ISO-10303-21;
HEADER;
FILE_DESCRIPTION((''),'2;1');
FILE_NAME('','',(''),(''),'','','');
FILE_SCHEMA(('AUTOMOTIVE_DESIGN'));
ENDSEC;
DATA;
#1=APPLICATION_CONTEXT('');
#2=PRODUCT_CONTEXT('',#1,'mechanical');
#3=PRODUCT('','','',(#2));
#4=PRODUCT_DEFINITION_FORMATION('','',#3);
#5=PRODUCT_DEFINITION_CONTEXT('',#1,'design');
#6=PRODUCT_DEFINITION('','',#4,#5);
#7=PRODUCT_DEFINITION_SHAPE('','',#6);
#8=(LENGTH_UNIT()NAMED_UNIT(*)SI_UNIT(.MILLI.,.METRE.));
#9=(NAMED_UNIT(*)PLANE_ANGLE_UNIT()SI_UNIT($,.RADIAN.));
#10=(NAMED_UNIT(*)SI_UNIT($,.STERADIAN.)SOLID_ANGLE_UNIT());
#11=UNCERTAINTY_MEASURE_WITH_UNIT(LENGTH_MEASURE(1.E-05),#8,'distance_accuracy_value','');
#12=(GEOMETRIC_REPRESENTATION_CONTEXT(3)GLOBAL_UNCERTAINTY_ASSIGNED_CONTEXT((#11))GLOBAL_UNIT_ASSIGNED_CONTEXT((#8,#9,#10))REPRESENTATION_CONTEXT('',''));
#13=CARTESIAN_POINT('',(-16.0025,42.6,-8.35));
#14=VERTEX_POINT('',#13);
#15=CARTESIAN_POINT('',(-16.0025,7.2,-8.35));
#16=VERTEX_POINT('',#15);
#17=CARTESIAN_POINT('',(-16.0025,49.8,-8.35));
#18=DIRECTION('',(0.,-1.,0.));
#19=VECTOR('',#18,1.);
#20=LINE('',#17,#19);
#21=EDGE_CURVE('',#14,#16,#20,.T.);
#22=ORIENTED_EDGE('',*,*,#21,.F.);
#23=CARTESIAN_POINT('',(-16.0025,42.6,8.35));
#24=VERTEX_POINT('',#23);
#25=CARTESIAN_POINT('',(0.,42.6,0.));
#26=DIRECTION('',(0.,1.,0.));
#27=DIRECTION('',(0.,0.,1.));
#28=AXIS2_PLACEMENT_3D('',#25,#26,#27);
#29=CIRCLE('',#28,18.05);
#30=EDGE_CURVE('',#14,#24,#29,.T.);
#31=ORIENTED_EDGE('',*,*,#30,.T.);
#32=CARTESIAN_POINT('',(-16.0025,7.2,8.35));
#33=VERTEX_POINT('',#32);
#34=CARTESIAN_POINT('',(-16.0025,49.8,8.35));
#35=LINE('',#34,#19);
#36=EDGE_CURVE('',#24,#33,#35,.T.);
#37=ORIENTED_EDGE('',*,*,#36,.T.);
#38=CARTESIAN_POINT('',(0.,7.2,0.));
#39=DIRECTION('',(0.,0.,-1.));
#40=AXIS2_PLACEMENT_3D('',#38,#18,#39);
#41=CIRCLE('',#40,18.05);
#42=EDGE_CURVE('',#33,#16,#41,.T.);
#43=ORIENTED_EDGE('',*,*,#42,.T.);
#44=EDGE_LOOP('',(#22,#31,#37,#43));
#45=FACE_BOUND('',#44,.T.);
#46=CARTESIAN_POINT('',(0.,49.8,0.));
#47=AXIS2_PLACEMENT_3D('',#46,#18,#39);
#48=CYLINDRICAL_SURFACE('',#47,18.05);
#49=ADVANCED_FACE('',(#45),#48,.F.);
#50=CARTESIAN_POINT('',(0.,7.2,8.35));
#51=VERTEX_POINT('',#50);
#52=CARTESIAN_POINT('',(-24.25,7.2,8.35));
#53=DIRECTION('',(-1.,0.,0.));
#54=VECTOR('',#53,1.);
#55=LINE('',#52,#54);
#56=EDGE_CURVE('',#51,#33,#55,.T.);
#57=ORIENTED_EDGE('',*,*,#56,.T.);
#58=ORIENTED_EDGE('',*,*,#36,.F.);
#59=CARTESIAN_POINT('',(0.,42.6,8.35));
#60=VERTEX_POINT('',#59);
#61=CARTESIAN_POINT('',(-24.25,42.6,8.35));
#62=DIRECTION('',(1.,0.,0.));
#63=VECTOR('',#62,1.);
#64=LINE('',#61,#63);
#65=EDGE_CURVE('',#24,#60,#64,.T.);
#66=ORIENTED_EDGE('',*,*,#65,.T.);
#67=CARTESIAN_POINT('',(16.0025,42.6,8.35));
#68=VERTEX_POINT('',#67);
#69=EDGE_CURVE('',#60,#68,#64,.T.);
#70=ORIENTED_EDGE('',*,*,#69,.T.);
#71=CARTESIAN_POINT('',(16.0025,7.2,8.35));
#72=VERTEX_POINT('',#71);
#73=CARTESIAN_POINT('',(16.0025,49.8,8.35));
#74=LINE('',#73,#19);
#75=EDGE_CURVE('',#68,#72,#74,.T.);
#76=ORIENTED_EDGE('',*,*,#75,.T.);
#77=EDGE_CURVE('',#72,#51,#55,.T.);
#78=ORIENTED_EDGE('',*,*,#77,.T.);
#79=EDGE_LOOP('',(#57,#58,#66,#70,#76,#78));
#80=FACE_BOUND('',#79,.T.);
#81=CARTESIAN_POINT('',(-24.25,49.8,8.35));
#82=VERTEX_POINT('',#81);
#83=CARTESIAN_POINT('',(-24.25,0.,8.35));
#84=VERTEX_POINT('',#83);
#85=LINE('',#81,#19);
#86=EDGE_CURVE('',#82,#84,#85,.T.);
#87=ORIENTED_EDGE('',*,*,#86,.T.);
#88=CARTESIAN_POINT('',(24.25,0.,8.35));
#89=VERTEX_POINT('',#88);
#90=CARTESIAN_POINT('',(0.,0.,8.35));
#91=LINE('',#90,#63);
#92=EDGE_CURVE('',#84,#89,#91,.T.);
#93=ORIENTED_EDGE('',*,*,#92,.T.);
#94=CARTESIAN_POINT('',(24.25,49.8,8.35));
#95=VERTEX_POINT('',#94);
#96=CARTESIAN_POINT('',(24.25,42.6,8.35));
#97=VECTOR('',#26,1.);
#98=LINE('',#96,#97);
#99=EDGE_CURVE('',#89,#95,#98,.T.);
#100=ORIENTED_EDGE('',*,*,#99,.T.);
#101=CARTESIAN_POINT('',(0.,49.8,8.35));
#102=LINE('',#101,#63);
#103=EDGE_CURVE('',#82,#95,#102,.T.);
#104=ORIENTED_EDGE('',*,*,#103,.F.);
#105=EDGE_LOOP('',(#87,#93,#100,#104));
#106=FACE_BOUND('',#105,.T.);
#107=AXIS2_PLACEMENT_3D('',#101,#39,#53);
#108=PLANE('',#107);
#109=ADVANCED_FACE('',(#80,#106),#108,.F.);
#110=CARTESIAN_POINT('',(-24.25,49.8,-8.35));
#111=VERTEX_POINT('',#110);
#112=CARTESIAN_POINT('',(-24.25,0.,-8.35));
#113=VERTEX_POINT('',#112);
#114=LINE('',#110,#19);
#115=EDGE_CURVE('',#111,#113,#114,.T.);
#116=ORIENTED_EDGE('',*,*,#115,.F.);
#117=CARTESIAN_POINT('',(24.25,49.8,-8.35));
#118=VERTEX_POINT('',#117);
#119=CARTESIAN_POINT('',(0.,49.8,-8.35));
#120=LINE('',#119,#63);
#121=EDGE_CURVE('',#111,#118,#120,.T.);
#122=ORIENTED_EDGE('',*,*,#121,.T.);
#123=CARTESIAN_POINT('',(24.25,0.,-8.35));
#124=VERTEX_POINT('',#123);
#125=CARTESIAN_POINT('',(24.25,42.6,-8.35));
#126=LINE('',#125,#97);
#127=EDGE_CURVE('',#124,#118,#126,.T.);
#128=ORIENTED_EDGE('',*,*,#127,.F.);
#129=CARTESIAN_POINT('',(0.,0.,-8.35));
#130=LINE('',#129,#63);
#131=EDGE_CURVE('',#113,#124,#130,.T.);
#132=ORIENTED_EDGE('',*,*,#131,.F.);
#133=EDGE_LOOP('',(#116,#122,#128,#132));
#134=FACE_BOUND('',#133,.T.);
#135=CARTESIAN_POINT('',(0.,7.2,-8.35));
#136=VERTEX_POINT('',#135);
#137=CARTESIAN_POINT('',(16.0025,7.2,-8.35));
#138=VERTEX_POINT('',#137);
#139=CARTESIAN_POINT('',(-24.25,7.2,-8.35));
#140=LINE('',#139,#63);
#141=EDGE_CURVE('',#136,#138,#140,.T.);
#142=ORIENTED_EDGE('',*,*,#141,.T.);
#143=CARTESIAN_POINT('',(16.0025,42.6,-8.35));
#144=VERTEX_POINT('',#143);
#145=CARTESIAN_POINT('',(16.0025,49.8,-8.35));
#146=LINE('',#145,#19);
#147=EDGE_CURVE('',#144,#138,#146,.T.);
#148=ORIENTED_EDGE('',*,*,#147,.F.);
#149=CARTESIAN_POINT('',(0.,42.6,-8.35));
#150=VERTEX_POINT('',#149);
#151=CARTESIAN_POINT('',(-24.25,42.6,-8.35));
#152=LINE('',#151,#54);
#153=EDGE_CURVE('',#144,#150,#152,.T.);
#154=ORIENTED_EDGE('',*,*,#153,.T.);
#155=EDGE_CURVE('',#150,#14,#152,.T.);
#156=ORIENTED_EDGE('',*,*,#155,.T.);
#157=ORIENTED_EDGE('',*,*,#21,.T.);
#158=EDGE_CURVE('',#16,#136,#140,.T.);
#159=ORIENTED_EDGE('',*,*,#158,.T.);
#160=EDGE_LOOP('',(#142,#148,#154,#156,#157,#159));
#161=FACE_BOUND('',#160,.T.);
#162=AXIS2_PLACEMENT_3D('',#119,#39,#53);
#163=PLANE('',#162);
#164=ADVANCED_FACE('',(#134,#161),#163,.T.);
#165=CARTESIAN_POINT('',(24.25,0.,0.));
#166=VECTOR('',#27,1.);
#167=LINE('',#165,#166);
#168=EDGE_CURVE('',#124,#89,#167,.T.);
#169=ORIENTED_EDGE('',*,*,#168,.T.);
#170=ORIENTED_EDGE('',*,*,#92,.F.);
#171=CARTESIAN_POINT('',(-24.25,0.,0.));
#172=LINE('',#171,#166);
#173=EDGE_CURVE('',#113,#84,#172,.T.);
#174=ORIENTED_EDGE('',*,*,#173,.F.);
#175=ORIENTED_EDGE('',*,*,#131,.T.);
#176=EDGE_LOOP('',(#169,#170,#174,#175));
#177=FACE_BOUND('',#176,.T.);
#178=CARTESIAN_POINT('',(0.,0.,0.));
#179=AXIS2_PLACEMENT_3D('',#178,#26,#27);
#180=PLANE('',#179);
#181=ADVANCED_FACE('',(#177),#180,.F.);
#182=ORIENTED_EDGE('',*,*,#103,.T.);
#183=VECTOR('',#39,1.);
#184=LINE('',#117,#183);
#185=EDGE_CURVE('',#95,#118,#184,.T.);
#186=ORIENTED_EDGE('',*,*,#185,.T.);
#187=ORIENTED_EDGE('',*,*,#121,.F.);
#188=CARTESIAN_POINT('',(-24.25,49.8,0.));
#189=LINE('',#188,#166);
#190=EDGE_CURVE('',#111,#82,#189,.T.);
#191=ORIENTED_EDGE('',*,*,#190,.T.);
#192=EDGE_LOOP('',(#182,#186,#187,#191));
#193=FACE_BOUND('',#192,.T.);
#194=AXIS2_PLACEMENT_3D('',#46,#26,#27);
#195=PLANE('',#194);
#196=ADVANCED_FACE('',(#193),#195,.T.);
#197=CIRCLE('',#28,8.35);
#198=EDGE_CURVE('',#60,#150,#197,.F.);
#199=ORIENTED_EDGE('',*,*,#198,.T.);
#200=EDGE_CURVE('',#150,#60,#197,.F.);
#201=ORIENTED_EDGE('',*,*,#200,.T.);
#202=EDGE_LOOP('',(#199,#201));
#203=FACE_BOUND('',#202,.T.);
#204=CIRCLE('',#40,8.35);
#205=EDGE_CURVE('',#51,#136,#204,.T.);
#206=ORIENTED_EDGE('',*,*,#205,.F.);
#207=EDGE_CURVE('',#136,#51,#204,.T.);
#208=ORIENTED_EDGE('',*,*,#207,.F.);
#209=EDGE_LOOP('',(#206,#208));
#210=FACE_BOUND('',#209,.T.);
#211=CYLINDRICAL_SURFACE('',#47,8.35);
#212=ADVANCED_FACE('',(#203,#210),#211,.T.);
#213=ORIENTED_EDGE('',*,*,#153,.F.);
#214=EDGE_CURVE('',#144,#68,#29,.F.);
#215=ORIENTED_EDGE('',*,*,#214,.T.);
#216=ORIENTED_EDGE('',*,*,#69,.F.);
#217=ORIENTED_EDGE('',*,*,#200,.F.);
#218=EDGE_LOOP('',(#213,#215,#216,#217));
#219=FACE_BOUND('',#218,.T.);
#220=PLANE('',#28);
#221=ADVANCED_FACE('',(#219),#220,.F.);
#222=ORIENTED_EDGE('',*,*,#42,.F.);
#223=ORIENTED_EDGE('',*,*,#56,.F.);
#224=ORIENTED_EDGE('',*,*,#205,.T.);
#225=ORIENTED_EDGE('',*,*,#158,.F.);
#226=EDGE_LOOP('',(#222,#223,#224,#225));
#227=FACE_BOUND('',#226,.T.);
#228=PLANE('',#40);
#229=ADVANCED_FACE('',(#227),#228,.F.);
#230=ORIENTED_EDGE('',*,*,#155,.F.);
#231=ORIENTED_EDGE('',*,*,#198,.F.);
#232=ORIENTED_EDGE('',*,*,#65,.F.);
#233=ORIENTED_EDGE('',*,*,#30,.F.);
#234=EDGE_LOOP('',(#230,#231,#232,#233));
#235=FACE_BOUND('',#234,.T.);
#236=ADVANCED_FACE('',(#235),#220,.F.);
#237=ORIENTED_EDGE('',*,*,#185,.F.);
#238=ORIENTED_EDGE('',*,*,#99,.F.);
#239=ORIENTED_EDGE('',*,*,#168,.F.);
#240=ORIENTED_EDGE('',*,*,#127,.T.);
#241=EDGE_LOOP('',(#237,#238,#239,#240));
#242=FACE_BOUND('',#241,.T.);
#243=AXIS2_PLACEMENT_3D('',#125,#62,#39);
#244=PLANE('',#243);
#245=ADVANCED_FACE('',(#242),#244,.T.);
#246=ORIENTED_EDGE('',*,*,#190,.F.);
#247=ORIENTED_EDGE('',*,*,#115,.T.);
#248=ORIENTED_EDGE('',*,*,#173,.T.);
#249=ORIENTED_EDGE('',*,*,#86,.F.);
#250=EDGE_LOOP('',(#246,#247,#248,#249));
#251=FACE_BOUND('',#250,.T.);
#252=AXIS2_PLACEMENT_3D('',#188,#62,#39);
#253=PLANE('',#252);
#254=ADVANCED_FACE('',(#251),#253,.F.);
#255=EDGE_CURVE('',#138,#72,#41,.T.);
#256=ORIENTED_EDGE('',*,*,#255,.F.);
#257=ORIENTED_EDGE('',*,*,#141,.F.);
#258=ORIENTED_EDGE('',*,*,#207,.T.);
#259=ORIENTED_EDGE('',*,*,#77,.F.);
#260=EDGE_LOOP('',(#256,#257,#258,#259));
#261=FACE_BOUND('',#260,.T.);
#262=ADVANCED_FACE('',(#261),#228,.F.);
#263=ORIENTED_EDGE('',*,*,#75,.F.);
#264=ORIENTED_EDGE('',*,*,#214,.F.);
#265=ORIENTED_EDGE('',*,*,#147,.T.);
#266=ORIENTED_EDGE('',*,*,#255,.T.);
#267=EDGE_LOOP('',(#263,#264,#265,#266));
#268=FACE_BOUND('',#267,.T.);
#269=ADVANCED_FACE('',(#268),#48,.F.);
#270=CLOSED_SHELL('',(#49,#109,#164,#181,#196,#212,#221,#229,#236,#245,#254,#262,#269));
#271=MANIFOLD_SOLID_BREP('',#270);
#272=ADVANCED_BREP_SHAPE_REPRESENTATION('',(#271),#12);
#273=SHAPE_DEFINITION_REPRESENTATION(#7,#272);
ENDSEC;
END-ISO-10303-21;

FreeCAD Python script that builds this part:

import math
import FreeCAD as App
import Part
import Sketcher

doc = App.newDocument("Part")
body = doc.addObject("PartDesign::Body", "Body")

# Sketch on XZ plane
sketch1 = body.newObject("Sketcher::SketchObject", "Sketch")
sketch1.AttachmentSupport = (doc.getObject("XZ_Plane"), [""])
sketch1.MapMode = "FlatFace"
sketch1.addGeometry([
    Part.LineSegment(App.Vector(-16.0025, -8.35, 0), App.Vector(-24.25, -8.35, 0)),
    Part.LineSegment(App.Vector(-24.25, -8.35, 0), App.Vector(-24.25, 8.35, 0)),
    Part.LineSegment(App.Vector(-24.25, 8.35, 0), App.Vector(-16.0025, 8.35, 0)),
    Part.ArcOfCircle(Part.Circle(App.Vector(0, 0, 0), App.Vector(0, 0, 1), 18.05), math.radians(152.444741), math.radians(207.555259)),
], False)
sketch1.addConstraint([
    Sketcher.Constraint("Coincident", 0, 2, 1, 1),
    Sketcher.Constraint("Coincident", 1, 2, 2, 1),
    Sketcher.Constraint("Coincident", 2, 2, 3, 1),
    Sketcher.Constraint("Coincident", 3, 2, 0, 1),
    Sketcher.Constraint("Horizontal", 0),
    Sketcher.Constraint("Vertical", 1),
    Sketcher.Constraint("Horizontal", 2),
    Sketcher.Constraint("Coincident", 3, 3, -1, 1),
    Sketcher.Constraint("Vertical", 2, 2, 3, 2),
    Sketcher.Constraint("Radius", 3, 18.05),
    Sketcher.Constraint("DistanceY", 1, 1, 1, 2, 16.7),
    Sketcher.Constraint("DistanceX", 0, 2, -1, 1, 24.25),
])
pad1 = body.newObject("PartDesign::Pad", "Pad")
pad1.Profile = sketch1
pad1.Length = 49.8
pad1.Reversed = True
body2 = doc.addObject("PartDesign::Body", "Body001")

# Sketch on XZ plane
sketch2 = body2.newObject("Sketcher::SketchObject", "Sketch001")
sketch2.AttachmentSupport = (doc.getObject("XZ_Plane001"), [""])
sketch2.MapMode = "FlatFace"
sketch2.addGeometry(Part.Circle(App.Vector(0, 0, 0), App.Vector(0, 0, 1), 8.35), False)
sketch2.addConstraint([
    Sketcher.Constraint("Coincident", 0, 3, -1, 1),
    Sketcher.Constraint("Diameter", 0, 16.7),
])
pad2 = body2.newObject("PartDesign::Pad", "Pad001")
pad2.Profile = sketch2
pad2.Length = 49.8
pad2.Reversed = True
body3 = doc.addObject("PartDesign::Body", "Body002")

# Sketch on XZ plane
sketch3 = body3.newObject("Sketcher::SketchObject", "Sketch002")
sketch3.AttachmentSupport = (doc.getObject("XZ_Plane002"), [""])
sketch3.MapMode = "FlatFace"
sketch3.addGeometry([
    Part.LineSegment(App.Vector(24.25, -8.35, 0), App.Vector(16.0025, -8.35, 0)),  # 0
    Part.ArcOfCircle(Part.Circle(App.Vector(0, 0, 0), App.Vector(0, 0, 1), 18.05), math.radians(-27.555259), math.radians(0)),  # 1
    Part.ArcOfCircle(Part.Circle(App.Vector(0, 0, 0), App.Vector(0, 0, 1), 18.05), math.radians(0), math.radians(27.555259)),  # 2
    Part.LineSegment(App.Vector(16.0025, 8.35, 0), App.Vector(24.25, 8.35, 0)),  # 3
    Part.LineSegment(App.Vector(24.25, 8.35, 0), App.Vector(24.25, -8.35, 0)),  # 4
], False)
sketch3.addConstraint([
    Sketcher.Constraint("Coincident", 0, 2, 1, 1),
    Sketcher.Constraint("Tangent", 1, 2, 2, 1),
    Sketcher.Constraint("Coincident", 2, 2, 3, 1),
    Sketcher.Constraint("Coincident", 3, 2, 4, 1),
    Sketcher.Constraint("Coincident", 4, 2, 0, 1),
    Sketcher.Constraint("Horizontal", 0),
    Sketcher.Constraint("Horizontal", 3),
    Sketcher.Constraint("Vertical", 4),
    Sketcher.Constraint("Coincident", 1, 3, -1, 1),
    Sketcher.Constraint("Equal", 1, 2),
    Sketcher.Constraint("PointOnObject", 1, 2, -1),
    Sketcher.Constraint("Vertical", 0, 2, 2, 2),
    Sketcher.Constraint("Radius", 1, 18.05),
    Sketcher.Constraint("DistanceY", 4, 2, 4, 1, 16.7),
    Sketcher.Constraint("DistanceX", 1, 2, 3, 2, 6.2),
])
pad3 = body3.newObject("PartDesign::Pad", "Pad002")
pad3.Profile = sketch3
pad3.Length = 49.8
pad3.Reversed = True
body.AllowCompound = True
doc.recompute()

boolean = body.newObject("PartDesign::Boolean", "Boolean")
boolean.Type = "Fuse"
boolean.addObjects([body2])
doc.recompute()

boolean2 = body.newObject("PartDesign::Boolean", "Boolean001")
boolean2.Type = "Fuse"
boolean2.addObjects([body3])

# Sketch on XZ plane
sketch4 = body.newObject("Sketcher::SketchObject", "Sketch003")
sketch4.AttachmentSupport = (doc.getObject("XZ_Plane"), [""])
sketch4.MapMode = "FlatFace"
sketch4.AttachmentOffset = App.Placement(App.Vector(0, 0, -49.8), App.Rotation())
sketch4.addGeometry([
    Part.LineSegment(App.Vector(-24.25, -8.35, 0), App.Vector(-24.25, 8.35, 0)),
    Part.LineSegment(App.Vector(-24.25, 8.35, 0), App.Vector(24.25, 8.35, 0)),
    Part.LineSegment(App.Vector(24.25, 8.35, 0), App.Vector(24.25, -8.35, 0)),
    Part.LineSegment(App.Vector(24.25, -8.35, 0), App.Vector(-24.25, -8.35, 0)),
], False)
sketch4.addConstraint([
    Sketcher.Constraint("Coincident", 0, 2, 1, 1),
    Sketcher.Constraint("Coincident", 1, 2, 2, 1),
    Sketcher.Constraint("Coincident", 2, 2, 3, 1),
    Sketcher.Constraint("Coincident", 3, 2, 0, 1),
    Sketcher.Constraint("Vertical", 0),
    Sketcher.Constraint("Horizontal", 1),
    Sketcher.Constraint("Vertical", 2),
    Sketcher.Constraint("Horizontal", 3),
    Sketcher.Constraint("Symmetric", 0, 2, 2, 2, -1, 1),
    Sketcher.Constraint("DistanceX", 1, 1, 1, 2, 48.5),
    Sketcher.Constraint("DistanceY", 0, 1, 0, 2, 16.7),
])
pad4 = body.newObject("PartDesign::Pad", "Pad003")
pad4.Profile = sketch4
pad4.Length = 7.2

# Sketch on XZ plane
sketch5 = body.newObject("Sketcher::SketchObject", "Sketch004")
sketch5.AttachmentSupport = (doc.getObject("XZ_Plane"), [""])
sketch5.MapMode = "FlatFace"
sketch5.addGeometry([
    Part.LineSegment(App.Vector(-24.25, 8.35, 0), App.Vector(-24.25, -8.35, 0)),
    Part.LineSegment(App.Vector(-24.25, -8.35, 0), App.Vector(24.25, -8.35, 0)),
    Part.LineSegment(App.Vector(24.25, -8.35, 0), App.Vector(24.25, 8.35, 0)),
    Part.LineSegment(App.Vector(24.25, 8.35, 0), App.Vector(-24.25, 8.35, 0)),
], False)
sketch5.addConstraint([
    Sketcher.Constraint("Coincident", 0, 2, 1, 1),
    Sketcher.Constraint("Coincident", 1, 2, 2, 1),
    Sketcher.Constraint("Coincident", 2, 2, 3, 1),
    Sketcher.Constraint("Coincident", 3, 2, 0, 1),
    Sketcher.Constraint("Vertical", 0),
    Sketcher.Constraint("Horizontal", 1),
    Sketcher.Constraint("Vertical", 2),
    Sketcher.Constraint("Horizontal", 3),
    Sketcher.Constraint("Symmetric", 0, 2, 2, 2, -1, 1),
    Sketcher.Constraint("DistanceX", 1, 1, 1, 2, 48.5),
    Sketcher.Constraint("DistanceY", 0, 2, 0, 1, 16.7),
])
pad5 = body.newObject("PartDesign::Pad", "Pad004")
pad5.Profile = sketch5
pad5.Length = 7.2
pad5.Reversed = True

doc.recompute()
